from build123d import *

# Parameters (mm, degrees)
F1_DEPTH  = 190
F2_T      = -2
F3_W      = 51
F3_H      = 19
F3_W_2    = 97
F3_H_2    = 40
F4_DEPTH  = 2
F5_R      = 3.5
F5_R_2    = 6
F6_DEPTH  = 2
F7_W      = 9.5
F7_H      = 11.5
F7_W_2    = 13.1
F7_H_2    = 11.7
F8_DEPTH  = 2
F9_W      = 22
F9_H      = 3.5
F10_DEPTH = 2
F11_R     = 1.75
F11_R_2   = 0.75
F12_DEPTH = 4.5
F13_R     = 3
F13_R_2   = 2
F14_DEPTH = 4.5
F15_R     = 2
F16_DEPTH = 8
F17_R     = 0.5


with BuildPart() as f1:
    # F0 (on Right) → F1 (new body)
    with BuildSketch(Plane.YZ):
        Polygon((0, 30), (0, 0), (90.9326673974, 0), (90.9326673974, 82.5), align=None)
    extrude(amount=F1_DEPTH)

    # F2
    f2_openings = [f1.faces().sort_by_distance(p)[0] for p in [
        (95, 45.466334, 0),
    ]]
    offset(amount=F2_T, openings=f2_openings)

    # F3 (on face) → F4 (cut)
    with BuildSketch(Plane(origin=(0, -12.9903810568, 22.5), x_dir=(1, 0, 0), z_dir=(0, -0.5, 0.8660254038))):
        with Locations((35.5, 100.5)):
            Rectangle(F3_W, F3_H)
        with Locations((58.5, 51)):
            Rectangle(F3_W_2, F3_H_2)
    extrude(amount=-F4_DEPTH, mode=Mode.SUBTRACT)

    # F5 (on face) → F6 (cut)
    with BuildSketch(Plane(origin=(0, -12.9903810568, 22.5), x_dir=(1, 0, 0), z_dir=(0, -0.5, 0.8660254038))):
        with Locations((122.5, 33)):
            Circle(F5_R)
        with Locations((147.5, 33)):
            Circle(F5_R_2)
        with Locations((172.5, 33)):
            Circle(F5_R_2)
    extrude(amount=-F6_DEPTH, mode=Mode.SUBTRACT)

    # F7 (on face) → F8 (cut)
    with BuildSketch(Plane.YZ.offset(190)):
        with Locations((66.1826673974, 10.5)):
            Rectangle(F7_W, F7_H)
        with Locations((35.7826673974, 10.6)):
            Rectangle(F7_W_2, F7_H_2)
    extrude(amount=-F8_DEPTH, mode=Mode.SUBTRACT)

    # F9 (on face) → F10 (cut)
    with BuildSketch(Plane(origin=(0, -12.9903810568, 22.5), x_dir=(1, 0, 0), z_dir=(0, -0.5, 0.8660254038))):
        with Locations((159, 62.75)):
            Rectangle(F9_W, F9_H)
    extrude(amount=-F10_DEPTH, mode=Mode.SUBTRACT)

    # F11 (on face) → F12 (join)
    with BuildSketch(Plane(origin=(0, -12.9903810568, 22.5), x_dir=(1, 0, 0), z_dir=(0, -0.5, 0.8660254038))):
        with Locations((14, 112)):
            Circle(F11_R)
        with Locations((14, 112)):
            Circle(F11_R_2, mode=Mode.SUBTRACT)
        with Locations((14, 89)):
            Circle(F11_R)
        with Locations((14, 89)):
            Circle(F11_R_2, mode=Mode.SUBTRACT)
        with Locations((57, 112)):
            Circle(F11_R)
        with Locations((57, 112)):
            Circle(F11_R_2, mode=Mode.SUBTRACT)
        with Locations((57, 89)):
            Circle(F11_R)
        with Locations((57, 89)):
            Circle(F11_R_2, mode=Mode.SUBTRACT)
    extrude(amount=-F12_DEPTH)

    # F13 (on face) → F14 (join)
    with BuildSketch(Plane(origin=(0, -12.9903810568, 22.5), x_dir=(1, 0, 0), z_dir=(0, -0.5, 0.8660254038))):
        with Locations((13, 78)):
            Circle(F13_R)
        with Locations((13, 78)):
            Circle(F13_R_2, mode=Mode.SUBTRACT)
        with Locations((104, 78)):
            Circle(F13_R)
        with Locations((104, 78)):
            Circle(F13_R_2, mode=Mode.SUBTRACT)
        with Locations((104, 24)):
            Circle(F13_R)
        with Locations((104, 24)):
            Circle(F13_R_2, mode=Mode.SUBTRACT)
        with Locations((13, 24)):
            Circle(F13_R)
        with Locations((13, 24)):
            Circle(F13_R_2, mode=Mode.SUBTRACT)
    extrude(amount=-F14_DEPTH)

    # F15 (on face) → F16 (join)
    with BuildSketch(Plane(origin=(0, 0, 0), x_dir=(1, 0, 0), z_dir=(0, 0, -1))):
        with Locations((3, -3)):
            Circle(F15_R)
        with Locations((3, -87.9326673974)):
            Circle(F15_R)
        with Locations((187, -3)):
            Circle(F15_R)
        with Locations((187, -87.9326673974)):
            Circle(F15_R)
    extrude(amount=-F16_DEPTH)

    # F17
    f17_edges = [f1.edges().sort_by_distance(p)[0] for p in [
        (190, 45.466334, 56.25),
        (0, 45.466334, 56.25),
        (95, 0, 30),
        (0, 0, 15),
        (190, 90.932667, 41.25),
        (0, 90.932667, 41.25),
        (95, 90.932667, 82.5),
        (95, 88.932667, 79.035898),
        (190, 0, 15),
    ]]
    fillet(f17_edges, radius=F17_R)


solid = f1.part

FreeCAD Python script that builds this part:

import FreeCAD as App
import Part
import Sketcher
from FreeCAD import Vector
Q = App.Units.Quantity


def edges_at(feature, points):
    """Names of the edges that pass closest to the given points."""
    edges = feature.Shape.Edges
    near = lambda p: min(range(len(edges)), key=lambda i: edges[i].distToShape(Part.Vertex(*p))[0])
    return sorted({f"Edge{near(p) + 1}" for p in points})


def faces_at(feature, points):
    """Names of the faces that lie closest to the given points."""
    faces = feature.Shape.Faces
    near = lambda p: min(range(len(faces)), key=lambda i: faces[i].distToShape(Part.Vertex(*p))[0])
    return sorted({f"Face{near(p) + 1}" for p in points})


def add_polygon(sketch, points):
    """Adds a closed chain of lines whose ends are joined by coincident constraints."""
    first, n = sketch.GeometryCount, len(points)
    for a, b in zip(points, points[1:] + points[:1]):
        sketch.addGeometry(Part.LineSegment(App.Vector(*a, 0), App.Vector(*b, 0)), False)
    for i in range(n):
        sketch.addConstraint(Sketcher.Constraint("Coincident", first + i, 2, first + (i + 1) % n, 1))

doc = App.newDocument("Part")
body = doc.addObject("PartDesign::Body", "Body")

sketch1 = body.newObject("Sketcher::SketchObject", "Sketch")
sketch1.AttachmentSupport = (doc.getObject("YZ_Plane"), [""])
sketch1.MapMode = "FlatFace"
add_polygon(sketch1, [(0, 30), (0, 0), (91, 0), (91, 82)])
sketch1.addConstraint(Sketcher.Constraint("Vertical", 0))
sketch1.addConstraint(Sketcher.Constraint("Horizontal", 1))
sketch1.addConstraint(Sketcher.Constraint("Vertical", 2))
sketch1.addConstraint(Sketcher.Constraint("Coincident", 0, 2, -1, 1))
sketch1.addConstraint(Sketcher.Constraint("DistanceY", 0, 2, 0, 1, 30.0))
sketch1.addConstraint(Sketcher.Constraint("Angle", 3, Q("-150 deg")))
sketch1.addConstraint(Sketcher.Constraint("Distance", 3, 105.0))
pad1 = body.newObject("PartDesign::Pad", "Pad")
pad1.Profile = sketch1
pad1.Length = 190
doc.recompute()

thickness = body.newObject("PartDesign::Thickness", "Thickness")
thickness.Base = (pad1, faces_at(pad1, [(95, 45.466, 0)]))
thickness.Value = 2
thickness.Reversed = True
thickness.Join = "Arc"

sketch2 = body.newObject("Sketcher::SketchObject", "Sketch001")
sketch2.Placement = App.Placement(Vector(0, -12.990381, 22.5), App.Rotation(Vector(1, 0, 0), Vector(0, 0.866025404, 0.5), Vector(0, -0.5, 0.866025404), "ZXY"))
add_polygon(sketch2, [(10, 110), (10, 91), (61, 91), (61, 110)])
add_polygon(sketch2, [(10, 71), (10, 31), (107, 31), (107, 71)])
sketch2.addConstraint(Sketcher.Constraint("Vertical", 0))
sketch2.addConstraint(Sketcher.Constraint("Horizontal", 1))
sketch2.addConstraint(Sketcher.Constraint("Vertical", 2))
sketch2.addConstraint(Sketcher.Constraint("Horizontal", 3))
sketch2.addConstraint(Sketcher.Constraint("Vertical", 4))
sketch2.addConstraint(Sketcher.Constraint("Horizontal", 5))
sketch2.addConstraint(Sketcher.Constraint("Vertical", 6))
sketch2.addConstraint(Sketcher.Constraint("Horizontal", 7))
sketch2.addConstraint(Sketcher.Constraint("Vertical", 3, 2, 4, 2))
sketch2.addConstraint(Sketcher.Constraint("DistanceX", 1, 1, 1, 2, 51.0))
sketch2.addConstraint(Sketcher.Constraint("DistanceX", 5, 1, 5, 2, 97.0))
sketch2.addConstraint(Sketcher.Constraint("DistanceY", 0, 2, 0, 1, 19.0))
sketch2.addConstraint(Sketcher.Constraint("DistanceY", 4, 2, 4, 1, 40.0))
sketch2.addConstraint(Sketcher.Constraint("DistanceX", -1, 1, 0, 2, 10.0))
sketch2.addConstraint(Sketcher.Constraint("DistanceY", -1, 1, 0, 2, 91.0))
sketch2.addConstraint(Sketcher.Constraint("DistanceY", -1, 1, 4, 2, 31.0))
pocket1 = body.newObject("PartDesign::Pocket", "Pocket")
pocket1.Profile = sketch2
pocket1.Length = 2

sketch3 = body.newObject("Sketcher::SketchObject", "Sketch002")
sketch3.Placement = App.Placement(Vector(0, -12.990381, 22.5), App.Rotation(Vector(1, 0, 0), Vector(0, 0.866025404, 0.5), Vector(0, -0.5, 0.866025404), "ZXY"))
sketch3.addGeometry(Part.Circle(Vector(122.5, 33, 0), Vector(0, 0, 1), 3.5), False)
sketch3.addGeometry(Part.Circle(Vector(147.5, 33, 0), Vector(0, 0, 1), 6), False)
sketch3.addGeometry(Part.Circle(Vector(172.5, 33, 0), Vector(0, 0, 1), 6), False)
sketch3.addConstraint(Sketcher.Constraint("Equal", 1, 2))
sketch3.addConstraint(Sketcher.Constraint("Horizontal", 0, 3, 1, 3))
sketch3.addConstraint(Sketcher.Constraint("Horizontal", 1, 3, 2, 3))
sketch3.addConstraint(Sketcher.Constraint("Diameter", 0, 7.0))
sketch3.addConstraint(Sketcher.Constraint("Diameter", 1, 12.0))
sketch3.addConstraint(Sketcher.Constraint("DistanceY", -1, 1, 0, 3, 33.0))
sketch3.addConstraint(Sketcher.Constraint("DistanceX", 0, 3, 1, 3, 25.0))
sketch3.addConstraint(Sketcher.Constraint("DistanceX", 1, 3, 2, 3, 25.0))
sketch3.addConstraint(Sketcher.Constraint("DistanceX", -1, 1, 0, 3, 122.5))
pocket2 = body.newObject("PartDesign::Pocket", "Pocket001")
pocket2.Profile = sketch3
pocket2.Length = 2

sketch4 = body.newObject("Sketcher::SketchObject", "Sketch003")
sketch4.AttachmentSupport = (doc.getObject("YZ_Plane"), [""])
sketch4.MapMode = "FlatFace"
sketch4.AttachmentOffset = App.Placement(Vector(0, 0, 190), App.Rotation())
add_polygon(sketch4, [(61, 16), (61, 5), (71, 5), (71, 16)])
add_polygon(sketch4, [(29, 16), (29, 5), (42, 5), (42, 16)])
sketch4.addConstraint(Sketcher.Constraint("Vertical", 0))
sketch4.addConstraint(Sketcher.Constraint("Horizontal", 1))
sketch4.addConstraint(Sketcher.Constraint("Vertical", 2))
sketch4.addConstraint(Sketcher.Constraint("Horizontal", 3))
sketch4.addConstraint(Sketcher.Constraint("Vertical", 4))
sketch4.addConstraint(Sketcher.Constraint("Horizontal", 5))
sketch4.addConstraint(Sketcher.Constraint("Vertical", 6))
sketch4.addConstraint(Sketcher.Constraint("Horizontal", 7))
sketch4.addConstraint(Sketcher.Constraint("Horizontal", 1, 2, 4, 2))
sketch4.addConstraint(Sketcher.Constraint("DistanceX", 1, 1, 1, 2, 9.5))
sketch4.addConstraint(Sketcher.Constraint("DistanceX", 5, 1, 5, 2, 13.1))
sketch4.addConstraint(Sketcher.Constraint("DistanceY", 0, 2, 0, 1, 11.5))
sketch4.addConstraint(Sketcher.Constraint("DistanceY", 4, 2, 4, 1, 11.7))
sketch4.addConstraint(Sketcher.Constraint("DistanceX", 4, 2, 0, 2, 32.2))
sketch4.addConstraint(Sketcher.Constraint("DistanceY", -1, 1, 0, 2, 4.75))
sketch4.addConstraint(Sketcher.Constraint("DistanceX", -1, 1, 0, 2, 61.432667))
pocket3 = body.newObject("PartDesign::Pocket", "Pocket002")
pocket3.Profile = sketch4
pocket3.Length = 2

sketch5 = body.newObject("Sketcher::SketchObject", "Sketch004")
sketch5.Placement = App.Placement(Vector(0, -12.990381, 22.5), App.Rotation(Vector(1, 0, 0), Vector(0, 0.866025404, 0.5), Vector(0, -0.5, 0.866025404), "ZXY"))
add_polygon(sketch5, [(148, 64.5), (148, 61), (170, 61), (170, 64.5)])
sketch5.addConstraint(Sketcher.Constraint("Vertical", 0))
sketch5.addConstraint(Sketcher.Constraint("Horizontal", 1))
sketch5.addConstraint(Sketcher.Constraint("Vertical", 2))
sketch5.addConstraint(Sketcher.Constraint("Horizontal", 3))
sketch5.addConstraint(Sketcher.Constraint("DistanceX", 1, 1, 1, 2, 22.0))
sketch5.addConstraint(Sketcher.Constraint("DistanceY", 0, 2, 0, 1, 3.5))
sketch5.addConstraint(Sketcher.Constraint("DistanceX", -1, 1, 0, 2, 148.0))
sketch5.addConstraint(Sketcher.Constraint("DistanceY", -1, 1, 0, 2, 61.0))
pocket4 = body.newObject("PartDesign::Pocket", "Pocket003")
pocket4.Profile = sketch5
pocket4.Length = 2

sketch6 = body.newObject("Sketcher::SketchObject", "Sketch005")
sketch6.Placement = App.Placement(Vector(0, -12.990381, 22.5), App.Rotation(Vector(1, 0, 0), Vector(0, 0.866025404, 0.5), Vector(0, -0.5, 0.866025404), "ZXY"))
sketch6.addGeometry(Part.Circle(Vector(14, 112, 0), Vector(0, 0, 1), 1.8), False)
sketch6.addGeometry(Part.Circle(Vector(14, 112, 0), Vector(0, 0, 1), 0.8), False)
sketch6.addGeometry(Part.Circle(Vector(14, 89, 0), Vector(0, 0, 1), 1.8), False)
sketch6.addGeometry(Part.Circle(Vector(14, 89, 0), Vector(0, 0, 1), 0.8), False)
sketch6.addGeometry(Part.Circle(Vector(57, 112, 0), Vector(0, 0, 1), 1.8), False)
sketch6.addGeometry(Part.Circle(Vector(57, 112, 0), Vector(0, 0, 1), 0.8), False)
sketch6.addGeometry(Part.Circle(Vector(57, 89, 0), Vector(0, 0, 1), 1.8), False)
sketch6.addGeometry(Part.Circle(Vector(57, 89, 0), Vector(0, 0, 1), 0.8), False)
sketch6.addConstraint(Sketcher.Constraint("Coincident", 1, 3, 0, 3))
sketch6.addConstraint(Sketcher.Constraint("Coincident", 3, 3, 2, 3))
sketch6.addConstraint(Sketcher.Constraint("Coincident", 5, 3, 4, 3))
sketch6.addConstraint(Sketcher.Constraint("Coincident", 7, 3, 6, 3))
sketch6.addConstraint(Sketcher.Constraint("Equal", 0, 2))
sketch6.addConstraint(Sketcher.Constraint("Equal", 1, 3))
sketch6.addConstraint(Sketcher.Constraint("Equal", 2, 4))
sketch6.addConstraint(Sketcher.Constraint("Equal", 3, 5))
sketch6.addConstraint(Sketcher.Constraint("Equal", 4, 6))
sketch6.addConstraint(Sketcher.Constraint("Equal", 5, 7))
sketch6.addConstraint(Sketcher.Constraint("Horizontal", 1, 3, 4, 3))
sketch6.addConstraint(Sketcher.Constraint("Horizontal", 3, 3, 6, 3))
sketch6.addConstraint(Sketcher.Constraint("Vertical", 1, 3, 2, 3))
sketch6.addConstraint(Sketcher.Constraint("Vertical", 5, 3, 6, 3))
sketch6.addConstraint(Sketcher.Constraint("Diameter", 0, 3.5))
sketch6.addConstraint(Sketcher.Constraint("Diameter", 1, 1.5))
sketch6.addConstraint(Sketcher.Constraint("DistanceX", -1, 1, 0, 3, 14.0))
sketch6.addConstraint(Sketcher.Constraint("DistanceY", -1, 1, 0, 3, 112.0))
sketch6.addConstraint(Sketcher.Constraint("DistanceY", -1, 1, 2, 3, 89.0))
sketch6.addConstraint(Sketcher.Constraint("DistanceX", -1, 1, 4, 3, 57.0))
pad2 = body.newObject("PartDesign::Pad", "Pad001")
pad2.Profile = sketch6
pad2.Length = 4.5
pad2.Reversed = True

sketch7 = body.newObject("Sketcher::SketchObject", "Sketch006")
sketch7.Placement = App.Placement(Vector(0, -12.990381, 22.5), App.Rotation(Vector(1, 0, 0), Vector(0, 0.866025404, 0.5), Vector(0, -0.5, 0.866025404), "ZXY"))
sketch7.addGeometry(Part.Circle(Vector(13, 78, 0), Vector(0, 0, 1), 3), False)
sketch7.addGeometry(Part.Circle(Vector(13, 78, 0), Vector(0, 0, 1), 2), False)
sketch7.addGeometry(Part.Circle(Vector(104, 78, 0), Vector(0, 0, 1), 3), False)
sketch7.addGeometry(Part.Circle(Vector(104, 78, 0), Vector(0, 0, 1), 2), False)
sketch7.addGeometry(Part.Circle(Vector(104, 24, 0), Vector(0, 0, 1), 3), False)
sketch7.addGeometry(Part.Circle(Vector(104, 24, 0), Vector(0, 0, 1), 2), False)
sketch7.addGeometry(Part.Circle(Vector(13, 24, 0), Vector(0, 0, 1), 3), False)
sketch7.addGeometry(Part.Circle(Vector(13, 24, 0), Vector(0, 0, 1), 2), False)
sketch7.addConstraint(Sketcher.Constraint("Coincident", 1, 3, 0, 3))
sketch7.addConstraint(Sketcher.Constraint("Coincident", 3, 3, 2, 3))
sketch7.addConstraint(Sketcher.Constraint("Coincident", 5, 3, 4, 3))
sketch7.addConstraint(Sketcher.Constraint("Coincident", 7, 3, 6, 3))
sketch7.addConstraint(Sketcher.Constraint("Equal", 0, 2))
sketch7.addConstraint(Sketcher.Constraint("Equal", 1, 3))
sketch7.addConstraint(Sketcher.Constraint("Equal", 2, 4))
sketch7.addConstraint(Sketcher.Constraint("Equal", 3, 5))
sketch7.addConstraint(Sketcher.Constraint("Equal", 4, 6))
sketch7.addConstraint(Sketcher.Constraint("Equal", 5, 7))
sketch7.addConstraint(Sketcher.Constraint("Horizontal", 1, 3, 2, 3))
sketch7.addConstraint(Sketcher.Constraint("Horizontal", 5, 3, 6, 3))
sketch7.addConstraint(Sketcher.Constraint("Vertical", 3, 3, 4, 3))
sketch7.addConstraint(Sketcher.Constraint("Vertical", 1, 3, 6, 3))
sketch7.addConstraint(Sketcher.Constraint("Diameter", 0, 6.0))
sketch7.addConstraint(Sketcher.Constraint("Diameter", 1, 4.0))
sketch7.addConstraint(Sketcher.Constraint("DistanceX", -1, 1, 0, 3, 13.0))
sketch7.addConstraint(Sketcher.Constraint("DistanceY", -1, 1, 0, 3, 78.0))
sketch7.addConstraint(Sketcher.Constraint("DistanceX", -1, 1, 2, 3, 104.0))
sketch7.addConstraint(Sketcher.Constraint("DistanceY", -1, 1, 4, 3, 24.0))
pad3 = body.newObject("PartDesign::Pad", "Pad002")
pad3.Profile = sketch7
pad3.Length = 4.5
pad3.Reversed = True

sketch8 = body.newObject("Sketcher::SketchObject", "Sketch007")
sketch8.AttachmentSupport = (doc.getObject("XY_Plane"), [""])
sketch8.MapMode = "FlatFace"
sketch8.addGeometry(Part.Circle(Vector(3, 3, 0), Vector(0, 0, 1), 2), False)
sketch8.addGeometry(Part.Circle(Vector(3, 87.9, 0), Vector(0, 0, 1), 2), False)
sketch8.addGeometry(Part.Circle(Vector(187, 3, 0), Vector(0, 0, 1), 2), False)
sketch8.addGeometry(Part.Circle(Vector(187, 87.9, 0), Vector(0, 0, 1), 2), False)
sketch8.addConstraint(Sketcher.Constraint("Equal", 0, 1))
sketch8.addConstraint(Sketcher.Constraint("Equal", 1, 2))
sketch8.addConstraint(Sketcher.Constraint("Equal", 2, 3))
sketch8.addConstraint(Sketcher.Constraint("Horizontal", 0, 3, 2, 3))
sketch8.addConstraint(Sketcher.Constraint("Horizontal", 1, 3, 3, 3))
sketch8.addConstraint(Sketcher.Constraint("Vertical", 0, 3, 1, 3))
sketch8.addConstraint(Sketcher.Constraint("Vertical", 2, 3, 3, 3))
sketch8.addConstraint(Sketcher.Constraint("Diameter", 0, 4.0))
sketch8.addConstraint(Sketcher.Constraint("DistanceX", -1, 1, 0, 3, 3.0))
sketch8.addConstraint(Sketcher.Constraint("DistanceY", -1, 1, 0, 3, 3.0))
sketch8.addConstraint(Sketcher.Constraint("DistanceX", -1, 1, 2, 3, 187.0))
sketch8.addConstraint(Sketcher.Constraint("DistanceY", -1, 1, 1, 3, 87.932667))
pad4 = body.newObject("PartDesign::Pad", "Pad003")
pad4.Profile = sketch8
pad4.Length = 8
doc.recompute()

fillet = body.newObject("PartDesign::Fillet", "Fillet")
fillet.Base = (pad4, edges_at(pad4, [
    (190, 45.466, 56.25),
    (0, 45.466, 56.25),
    (95, 0, 30),
    (0, 0, 15),
    (190, 90.933, 41.25),
    (0, 90.933, 41.25),
    (95, 90.933, 82.5),
    (95, 88.933, 79.036),
    (190, 0, 15),
]))
fillet.Radius = 0.5

doc.recompute()
